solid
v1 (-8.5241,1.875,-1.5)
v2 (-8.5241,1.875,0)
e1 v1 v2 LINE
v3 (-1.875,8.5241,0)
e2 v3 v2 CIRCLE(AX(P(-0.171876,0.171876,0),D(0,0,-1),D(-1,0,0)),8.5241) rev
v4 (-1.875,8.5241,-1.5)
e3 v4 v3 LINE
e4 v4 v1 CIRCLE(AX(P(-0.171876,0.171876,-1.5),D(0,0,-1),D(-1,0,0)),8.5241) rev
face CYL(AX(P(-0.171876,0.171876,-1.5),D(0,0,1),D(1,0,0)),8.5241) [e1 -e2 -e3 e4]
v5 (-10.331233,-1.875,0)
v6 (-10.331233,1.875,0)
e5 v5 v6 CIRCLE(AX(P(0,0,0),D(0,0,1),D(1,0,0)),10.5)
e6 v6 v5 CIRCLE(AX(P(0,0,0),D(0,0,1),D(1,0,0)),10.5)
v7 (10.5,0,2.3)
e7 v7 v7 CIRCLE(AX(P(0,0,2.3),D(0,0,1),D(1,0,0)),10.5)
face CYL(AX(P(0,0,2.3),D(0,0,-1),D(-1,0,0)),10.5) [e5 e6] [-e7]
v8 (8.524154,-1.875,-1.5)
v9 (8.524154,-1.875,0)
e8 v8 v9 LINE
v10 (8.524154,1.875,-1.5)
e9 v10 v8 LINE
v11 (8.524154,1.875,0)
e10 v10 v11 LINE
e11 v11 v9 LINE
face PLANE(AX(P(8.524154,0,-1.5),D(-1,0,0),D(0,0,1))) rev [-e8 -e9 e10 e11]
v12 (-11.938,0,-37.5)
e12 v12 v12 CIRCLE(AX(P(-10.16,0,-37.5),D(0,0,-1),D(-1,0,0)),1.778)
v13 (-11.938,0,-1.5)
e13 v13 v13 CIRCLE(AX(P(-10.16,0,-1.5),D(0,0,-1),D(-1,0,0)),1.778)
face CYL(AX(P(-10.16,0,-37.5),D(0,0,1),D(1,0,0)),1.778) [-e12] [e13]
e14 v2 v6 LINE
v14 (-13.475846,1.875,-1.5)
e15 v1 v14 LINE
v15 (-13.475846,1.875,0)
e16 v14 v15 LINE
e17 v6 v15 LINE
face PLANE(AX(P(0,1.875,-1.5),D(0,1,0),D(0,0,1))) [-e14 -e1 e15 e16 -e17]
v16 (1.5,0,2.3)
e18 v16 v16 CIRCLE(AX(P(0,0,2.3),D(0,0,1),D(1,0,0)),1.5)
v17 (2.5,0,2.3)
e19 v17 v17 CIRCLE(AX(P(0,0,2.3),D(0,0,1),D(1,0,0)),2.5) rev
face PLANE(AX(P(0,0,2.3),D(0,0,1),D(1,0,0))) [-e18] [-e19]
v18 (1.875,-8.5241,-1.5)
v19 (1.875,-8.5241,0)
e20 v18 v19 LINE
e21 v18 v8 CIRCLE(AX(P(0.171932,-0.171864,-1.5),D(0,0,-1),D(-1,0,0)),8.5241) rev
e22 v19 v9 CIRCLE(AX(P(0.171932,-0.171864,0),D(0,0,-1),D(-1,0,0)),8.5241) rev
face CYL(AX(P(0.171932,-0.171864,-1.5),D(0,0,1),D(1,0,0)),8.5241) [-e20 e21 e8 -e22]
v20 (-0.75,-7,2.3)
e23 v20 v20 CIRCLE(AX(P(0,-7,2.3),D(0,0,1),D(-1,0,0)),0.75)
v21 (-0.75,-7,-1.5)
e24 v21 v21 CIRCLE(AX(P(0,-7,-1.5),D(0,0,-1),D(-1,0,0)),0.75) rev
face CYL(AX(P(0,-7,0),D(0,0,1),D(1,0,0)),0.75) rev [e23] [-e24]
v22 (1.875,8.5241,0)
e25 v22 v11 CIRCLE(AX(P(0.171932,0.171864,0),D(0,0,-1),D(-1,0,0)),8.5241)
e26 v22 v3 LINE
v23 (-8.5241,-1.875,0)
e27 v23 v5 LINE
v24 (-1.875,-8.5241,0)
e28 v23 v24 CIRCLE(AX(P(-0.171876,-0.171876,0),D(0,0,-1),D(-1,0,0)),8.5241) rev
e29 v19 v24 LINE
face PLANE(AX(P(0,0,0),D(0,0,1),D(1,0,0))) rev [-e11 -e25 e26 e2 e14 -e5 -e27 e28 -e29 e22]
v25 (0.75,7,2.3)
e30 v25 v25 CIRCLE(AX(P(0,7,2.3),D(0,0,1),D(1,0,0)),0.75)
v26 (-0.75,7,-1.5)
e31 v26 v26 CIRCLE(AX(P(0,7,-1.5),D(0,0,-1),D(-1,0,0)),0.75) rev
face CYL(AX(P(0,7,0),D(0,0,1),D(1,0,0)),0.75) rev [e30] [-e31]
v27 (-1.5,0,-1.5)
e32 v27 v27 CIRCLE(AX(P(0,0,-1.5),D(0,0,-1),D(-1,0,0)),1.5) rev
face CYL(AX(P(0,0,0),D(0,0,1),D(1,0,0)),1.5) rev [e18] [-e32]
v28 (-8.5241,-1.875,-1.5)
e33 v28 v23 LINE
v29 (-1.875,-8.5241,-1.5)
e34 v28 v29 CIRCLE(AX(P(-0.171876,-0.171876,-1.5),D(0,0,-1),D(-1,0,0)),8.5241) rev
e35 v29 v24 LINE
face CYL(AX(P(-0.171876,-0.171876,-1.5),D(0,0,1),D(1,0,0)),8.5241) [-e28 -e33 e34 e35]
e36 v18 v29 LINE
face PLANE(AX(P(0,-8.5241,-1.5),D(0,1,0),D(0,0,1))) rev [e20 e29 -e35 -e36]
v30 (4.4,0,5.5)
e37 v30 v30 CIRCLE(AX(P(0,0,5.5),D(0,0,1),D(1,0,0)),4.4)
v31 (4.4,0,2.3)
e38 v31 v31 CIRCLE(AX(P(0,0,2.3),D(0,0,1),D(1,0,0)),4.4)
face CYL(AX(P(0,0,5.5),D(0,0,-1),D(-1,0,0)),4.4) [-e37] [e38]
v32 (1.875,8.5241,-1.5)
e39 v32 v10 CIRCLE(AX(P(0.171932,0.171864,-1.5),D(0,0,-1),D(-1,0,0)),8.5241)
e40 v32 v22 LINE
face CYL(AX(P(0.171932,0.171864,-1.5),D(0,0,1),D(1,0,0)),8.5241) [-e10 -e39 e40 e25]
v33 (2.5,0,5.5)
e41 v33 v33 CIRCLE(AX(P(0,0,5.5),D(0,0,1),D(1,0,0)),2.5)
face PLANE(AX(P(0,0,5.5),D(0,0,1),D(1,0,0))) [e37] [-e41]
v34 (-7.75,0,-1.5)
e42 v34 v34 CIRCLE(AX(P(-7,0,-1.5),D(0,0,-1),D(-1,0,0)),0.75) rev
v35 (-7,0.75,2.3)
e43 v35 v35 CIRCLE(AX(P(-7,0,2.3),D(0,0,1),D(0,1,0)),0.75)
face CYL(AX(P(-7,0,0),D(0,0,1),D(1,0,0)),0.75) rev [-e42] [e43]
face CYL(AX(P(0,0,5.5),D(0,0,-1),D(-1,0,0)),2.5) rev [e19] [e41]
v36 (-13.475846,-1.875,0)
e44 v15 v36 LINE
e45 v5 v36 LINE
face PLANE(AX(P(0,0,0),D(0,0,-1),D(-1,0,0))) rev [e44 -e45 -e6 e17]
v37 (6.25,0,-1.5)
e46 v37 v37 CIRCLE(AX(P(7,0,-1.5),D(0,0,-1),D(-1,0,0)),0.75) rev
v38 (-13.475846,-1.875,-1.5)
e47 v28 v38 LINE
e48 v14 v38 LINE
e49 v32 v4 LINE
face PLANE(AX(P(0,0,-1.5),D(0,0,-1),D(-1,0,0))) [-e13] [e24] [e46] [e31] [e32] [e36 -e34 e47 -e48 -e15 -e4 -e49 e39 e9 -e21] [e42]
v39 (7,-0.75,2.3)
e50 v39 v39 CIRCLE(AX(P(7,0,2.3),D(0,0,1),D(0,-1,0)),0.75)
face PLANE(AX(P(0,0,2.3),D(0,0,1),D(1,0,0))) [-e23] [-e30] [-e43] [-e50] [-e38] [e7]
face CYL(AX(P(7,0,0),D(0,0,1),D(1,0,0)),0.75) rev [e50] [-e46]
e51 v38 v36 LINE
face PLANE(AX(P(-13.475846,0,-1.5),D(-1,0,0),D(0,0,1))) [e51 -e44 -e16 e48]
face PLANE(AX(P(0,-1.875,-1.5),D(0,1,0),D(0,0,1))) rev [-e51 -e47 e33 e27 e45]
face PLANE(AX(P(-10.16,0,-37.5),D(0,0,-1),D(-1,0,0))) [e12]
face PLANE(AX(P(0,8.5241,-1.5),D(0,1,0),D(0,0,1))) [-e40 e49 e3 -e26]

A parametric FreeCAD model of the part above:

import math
import FreeCAD as App
import Part
import Sketcher

V = App.Vector
Q = App.Units.Quantity

doc = App.newDocument("Part")
body = doc.addObject("PartDesign::Body", "Body")

sketch1 = doc.addObject("Sketcher::SketchObject", "Sketch")
body.addObject(sketch1)
sketch1.AttachmentSupport = (doc.XY_Plane, [""])
sketch1.MapMode = "FlatFace"
sketch1.addGeometry(Part.Circle(V(0, 0, 0), V(0, 0, 1), 10), False)
sketch1.addConstraint(Sketcher.Constraint("Coincident", 0, 3, -1, 1))
sketch1.addConstraint(Sketcher.Constraint("Diameter", 0, Q("21 mm")))
pad1 = doc.addObject("PartDesign::Pad", "Pad")
body.addObject(pad1)
pad1.Profile = sketch1
pad1.Length = 2.3

sketch2 = doc.addObject("Sketcher::SketchObject", "Sketch001")
body.addObject(sketch2)
sketch2.AttachmentSupport = (doc.XY_Plane, [""])
sketch2.MapMode = "FlatFace"
sketch2.AttachmentOffset = App.Placement(V(0, 0, 2.3), App.Rotation())
sketch2.addGeometry(Part.Circle(V(0, 7, 0), V(0, 0, 1), 0.8), False)
sketch2.addConstraint(Sketcher.Constraint("PointOnObject", 0, 3, -2))
sketch2.addConstraint(Sketcher.Constraint("Diameter", 0, Q("1.5 mm")))
sketch2.addConstraint(Sketcher.Constraint("DistanceY", -1, 1, 0, 3, Q("7 mm")))
pocket1 = doc.addObject("PartDesign::Pocket", "Pocket")
body.addObject(pocket1)
pocket1.Profile = sketch2
pocket1.Type = "ThroughAll"

sketch3 = doc.addObject("Sketcher::SketchObject", "Sketch002")
body.addObject(sketch3)
sketch3.AttachmentSupport = (doc.XY_Plane, [""])
sketch3.MapMode = "FlatFace"
sketch3.AttachmentOffset = App.Placement(V(0, 0, 2.3), App.Rotation())
sketch3.addGeometry(Part.Circle(V(0, 0, 0), V(0, 0, 1), 1.5), False)
sketch3.addConstraint(Sketcher.Constraint("Coincident", 0, 3, -1, 1))
sketch3.addConstraint(Sketcher.Constraint("Diameter", 0, Q("3 mm")))
pocket2 = doc.addObject("PartDesign::Pocket", "Pocket001")
body.addObject(pocket2)
pocket2.Profile = sketch3
pocket2.Length = 2.3
doc.recompute()

polarpattern = doc.addObject("PartDesign::PolarPattern", "PolarPattern")
body.addObject(polarpattern)
polarpattern.Originals = [pocket1]
polarpattern.Axis = (doc.Z_Axis, [""])
polarpattern.Angle = 360
polarpattern.Occurrences = 4
body.Tip = polarpattern

sketch4 = doc.addObject("Sketcher::SketchObject", "Sketch003")
body.addObject(sketch4)
sketch4.AttachmentSupport = (doc.XY_Plane, [""])
sketch4.MapMode = "FlatFace"
sketch4.AttachmentOffset = App.Placement(V(0, 0, 2.3), App.Rotation())
sketch4.addGeometry(Part.Circle(V(0, 0, 0), V(0, 0, 1), 4.4), False)
sketch4.addGeometry(Part.Circle(V(0, 0, 0), V(0, 0, 1), 2.5), False)
sketch4.addConstraint(Sketcher.Constraint("Coincident", 0, 3, -1, 1))
sketch4.addConstraint(Sketcher.Constraint("Coincident", 1, 3, -1, 1))
sketch4.addConstraint(Sketcher.Constraint("Diameter", 1, Q("5 mm")))
sketch4.addConstraint(Sketcher.Constraint("Diameter", 0, Q("8.8 mm")))
pad2 = doc.addObject("PartDesign::Pad", "Pad001")
body.addObject(pad2)
pad2.Profile = sketch4
pad2.Length = 3.2

sketch5 = doc.addObject("Sketcher::SketchObject", "Sketch004")
body.addObject(sketch5)
sketch5.AttachmentSupport = (doc.XY_Plane, [""])
sketch5.MapMode = "FlatFace"
sketch5.addGeometry(Part.LineSegment(V(8.5, 1.9, 0), V(8.5, -1.9, 0)), False)
sketch5.addGeometry(Part.LineSegment(V(8.5, -1.9, 0), V(-13.5, -1.9, 0)), False)
sketch5.addGeometry(Part.LineSegment(V(-13.5, -1.9, 0), V(-13.5, 1.9, 0)), False)
sketch5.addGeometry(Part.LineSegment(V(-13.5, 1.9, 0), V(8.5, 1.9, 0)), False)
sketch5.addGeometry(Part.Circle(V(7, 0, 0), V(0, 0, 1), 0.8), False)
sketch5.addGeometry(Part.Circle(V(0, 0, 0), V(0, 0, 1), 1.5), False)
sketch5.addGeometry(Part.Circle(V(-7, 0, 0), V(0, 0, 1), 0.8), False)
sketch5.addConstraint(Sketcher.Constraint("Coincident", 0, 2, 1, 1))
sketch5.addConstraint(Sketcher.Constraint("Coincident", 1, 2, 2, 1))
sketch5.addConstraint(Sketcher.Constraint("Coincident", 2, 2, 3, 1))
sketch5.addConstraint(Sketcher.Constraint("Coincident", 3, 2, 0, 1))
sketch5.addConstraint(Sketcher.Constraint("Vertical", 0))
sketch5.addConstraint(Sketcher.Constraint("Horizontal", 1))
sketch5.addConstraint(Sketcher.Constraint("Vertical", 2))
sketch5.addConstraint(Sketcher.Constraint("Horizontal", 3))
sketch5.addConstraint(Sketcher.Constraint("Coincident", 5, 3, -1, 1))
sketch5.addConstraint(Sketcher.Constraint("Equal", 4, 6))
sketch5.addConstraint(Sketcher.Constraint("Symmetric", 4, 3, 6, 3, -1, 1))
sketch5.addConstraint(Sketcher.Constraint("PointOnObject", 4, 3, -1))
sketch5.addConstraint(Sketcher.Constraint("Diameter", 5, Q("3 mm")))
sketch5.addConstraint(Sketcher.Constraint("Diameter", 4, Q("1.5 mm")))
sketch5.addConstraint(Sketcher.Constraint("DistanceX", 1, 2, 1, 1, Q("22 mm")))
sketch5.addConstraint(Sketcher.Constraint("DistanceX", -1, 1, 4, 3, Q("7 mm")))
sketch5.addConstraint(Sketcher.Constraint("DistanceY", 0, 2, 0, 1, Q("3.75 mm")))
sketch5.addConstraint(Sketcher.Constraint("DistanceY", 0, 2, -1, 1, Q("1.875 mm")))
sketch5.addConstraint(Sketcher.Constraint("DistanceX", -1, 1, 0, 2, Q("8.524154 mm")))
pad3 = doc.addObject("PartDesign::Pad", "Pad002")
body.addObject(pad3)
pad3.Profile = sketch5
pad3.Length = 1.5
pad3.Reversed = True

sketch6 = doc.addObject("Sketcher::SketchObject", "Sketch005")
body.addObject(sketch6)
sketch6.AttachmentSupport = (doc.XY_Plane, [""])
sketch6.MapMode = "FlatFace"
sketch6.AttachmentOffset = App.Placement(V(0, 0, -1.5), App.Rotation())
sketch6.addGeometry(Part.Circle(V(-10.2, 0, 0), V(0, 0, 1), 1.8), False)
sketch6.addConstraint(Sketcher.Constraint("PointOnObject", 0, 3, -1))
sketch6.addConstraint(Sketcher.Constraint("Diameter", 0, Q("3.556 mm")))
sketch6.addConstraint(Sketcher.Constraint("DistanceX", 0, 3, -1, 1, Q("10.16 mm")))
pad4 = doc.addObject("PartDesign::Pad", "Pad003")
body.addObject(pad4)
pad4.Profile = sketch6
pad4.Length = 36
pad4.Reversed = True

sketch7 = doc.addObject("Sketcher::SketchObject", "Sketch006")
body.addObject(sketch7)
sketch7.AttachmentSupport = (doc.XY_Plane, [""])
sketch7.MapMode = "FlatFace"
sketch7.addGeometry(Part.LineSegment(V(8.5, 1.9, 0), V(-8.5, 1.9, 0)), False)
sketch7.addGeometry(Part.ArcOfCircle(Part.Circle(V(-0.2, 0.2, 0), V(0, 0, 1), 8.5), math.radians(102), math.radians(168)), False)
sketch7.addGeometry(Part.LineSegment(V(-1.9, 8.5, 0), V(1.9, 8.5, 0)), False)
sketch7.addGeometry(Part.ArcOfCircle(Part.Circle(V(0.2, 0.2, 0), V(0, 0, 1), 8.5), math.radians(12), math.radians(78)), False)
sketch7.addGeometry(Part.Circle(V(0, 7, 0), V(0, 0, 1), 0.8), False)
sketch7.addGeometry(Part.ArcOfCircle(Part.Circle(V(0.2, -0.2, 0), V(0, 0, 1), 8.5), math.radians(-78), math.radians(-12)), False)
sketch7.addGeometry(Part.LineSegment(V(1.9, -8.5, 0), V(-1.9, -8.5, 0)), False)
sketch7.addGeometry(Part.ArcOfCircle(Part.Circle(V(-0.2, -0.2, 0), V(0, 0, 1), 8.5), math.radians(-168), math.radians(-102)), False)
sketch7.addGeometry(Part.LineSegment(V(-8.5, -1.9, 0), V(8.5, -1.9, 0)), False)
sketch7.addGeometry(Part.Circle(V(0, -7, 0), V(0, 0, 1), 0.8), False)
sketch7.addConstraint(Sketcher.Constraint("Coincident", 0, 2, 1, 2))
sketch7.addConstraint(Sketcher.Constraint("Coincident", 1, 1, 2, 1))
sketch7.addConstraint(Sketcher.Constraint("Coincident", 2, 2, 3, 2))
sketch7.addConstraint(Sketcher.Constraint("Coincident", 3, 1, 0, 1))
sketch7.addConstraint(Sketcher.Constraint("Coincident", 5, 1, 6, 1))
sketch7.addConstraint(Sketcher.Constraint("Coincident", 6, 2, 7, 2))
sketch7.addConstraint(Sketcher.Constraint("Coincident", 7, 1, 8, 1))
sketch7.addConstraint(Sketcher.Constraint("Coincident", 8, 2, 5, 2))
sketch7.addConstraint(Sketcher.Constraint("Horizontal", 0))
sketch7.addConstraint(Sketcher.Constraint("Horizontal", 2))
sketch7.addConstraint(Sketcher.Constraint("Horizontal", 6))
sketch7.addConstraint(Sketcher.Constraint("Horizontal", 8))
sketch7.addConstraint(Sketcher.Constraint("Equal", 1, 3))
sketch7.addConstraint(Sketcher.Constraint("Equal", 3, 5))
sketch7.addConstraint(Sketcher.Constraint("Equal", 5, 7))
sketch7.addConstraint(Sketcher.Constraint("Equal", 4, 9))
sketch7.addConstraint(Sketcher.Constraint("Symmetric", 4, 3, 9, 3, -1, 1))
sketch7.addConstraint(Sketcher.Constraint("Symmetric", 1, 1, 5, 1, -1, 1))
sketch7.addConstraint(Sketcher.Constraint("Symmetric", 3, 3, 5, 3, -1))
sketch7.addConstraint(Sketcher.Constraint("Symmetric", 1, 3, 7, 3, -1))
sketch7.addConstraint(Sketcher.Constraint("PointOnObject", 4, 3, -2))
sketch7.addConstraint(Sketcher.Constraint("Vertical", 0, 2, 7, 1))
sketch7.addConstraint(Sketcher.Constraint("Diameter", 4, Q("1.5 mm")))
sketch7.addConstraint(Sketcher.Constraint("DistanceY", -1, 1, 4, 3, Q("7 mm")))
sketch7.addConstraint(Sketcher.Constraint("DistanceX", 2, 1, 2, 2, Q("3.75 mm")))
sketch7.addConstraint(Sketcher.Constraint("Radius", 1, Q("8.5241 mm")))
sketch7.addConstraint(Sketcher.Constraint("DistanceY", 7, 1, 0, 2, Q("3.75 mm")))
sketch7.addConstraint(Sketcher.Constraint("DistanceX", 0, 2, -1, 1, Q("8.5241 mm")))
sketch7.addConstraint(Sketcher.Constraint("DistanceY", -1, 1, 1, 1, Q("8.5241 mm")))
sketch7.addConstraint(Sketcher.Constraint("DistanceX", 0, 2, 0, 1, Q("17.048254 mm")))
pad5 = doc.addObject("PartDesign::Pad", "Pad004")
body.addObject(pad5)
pad5.Profile = sketch7
pad5.Length = 1.5
pad5.Reversed = True

doc.recompute()
